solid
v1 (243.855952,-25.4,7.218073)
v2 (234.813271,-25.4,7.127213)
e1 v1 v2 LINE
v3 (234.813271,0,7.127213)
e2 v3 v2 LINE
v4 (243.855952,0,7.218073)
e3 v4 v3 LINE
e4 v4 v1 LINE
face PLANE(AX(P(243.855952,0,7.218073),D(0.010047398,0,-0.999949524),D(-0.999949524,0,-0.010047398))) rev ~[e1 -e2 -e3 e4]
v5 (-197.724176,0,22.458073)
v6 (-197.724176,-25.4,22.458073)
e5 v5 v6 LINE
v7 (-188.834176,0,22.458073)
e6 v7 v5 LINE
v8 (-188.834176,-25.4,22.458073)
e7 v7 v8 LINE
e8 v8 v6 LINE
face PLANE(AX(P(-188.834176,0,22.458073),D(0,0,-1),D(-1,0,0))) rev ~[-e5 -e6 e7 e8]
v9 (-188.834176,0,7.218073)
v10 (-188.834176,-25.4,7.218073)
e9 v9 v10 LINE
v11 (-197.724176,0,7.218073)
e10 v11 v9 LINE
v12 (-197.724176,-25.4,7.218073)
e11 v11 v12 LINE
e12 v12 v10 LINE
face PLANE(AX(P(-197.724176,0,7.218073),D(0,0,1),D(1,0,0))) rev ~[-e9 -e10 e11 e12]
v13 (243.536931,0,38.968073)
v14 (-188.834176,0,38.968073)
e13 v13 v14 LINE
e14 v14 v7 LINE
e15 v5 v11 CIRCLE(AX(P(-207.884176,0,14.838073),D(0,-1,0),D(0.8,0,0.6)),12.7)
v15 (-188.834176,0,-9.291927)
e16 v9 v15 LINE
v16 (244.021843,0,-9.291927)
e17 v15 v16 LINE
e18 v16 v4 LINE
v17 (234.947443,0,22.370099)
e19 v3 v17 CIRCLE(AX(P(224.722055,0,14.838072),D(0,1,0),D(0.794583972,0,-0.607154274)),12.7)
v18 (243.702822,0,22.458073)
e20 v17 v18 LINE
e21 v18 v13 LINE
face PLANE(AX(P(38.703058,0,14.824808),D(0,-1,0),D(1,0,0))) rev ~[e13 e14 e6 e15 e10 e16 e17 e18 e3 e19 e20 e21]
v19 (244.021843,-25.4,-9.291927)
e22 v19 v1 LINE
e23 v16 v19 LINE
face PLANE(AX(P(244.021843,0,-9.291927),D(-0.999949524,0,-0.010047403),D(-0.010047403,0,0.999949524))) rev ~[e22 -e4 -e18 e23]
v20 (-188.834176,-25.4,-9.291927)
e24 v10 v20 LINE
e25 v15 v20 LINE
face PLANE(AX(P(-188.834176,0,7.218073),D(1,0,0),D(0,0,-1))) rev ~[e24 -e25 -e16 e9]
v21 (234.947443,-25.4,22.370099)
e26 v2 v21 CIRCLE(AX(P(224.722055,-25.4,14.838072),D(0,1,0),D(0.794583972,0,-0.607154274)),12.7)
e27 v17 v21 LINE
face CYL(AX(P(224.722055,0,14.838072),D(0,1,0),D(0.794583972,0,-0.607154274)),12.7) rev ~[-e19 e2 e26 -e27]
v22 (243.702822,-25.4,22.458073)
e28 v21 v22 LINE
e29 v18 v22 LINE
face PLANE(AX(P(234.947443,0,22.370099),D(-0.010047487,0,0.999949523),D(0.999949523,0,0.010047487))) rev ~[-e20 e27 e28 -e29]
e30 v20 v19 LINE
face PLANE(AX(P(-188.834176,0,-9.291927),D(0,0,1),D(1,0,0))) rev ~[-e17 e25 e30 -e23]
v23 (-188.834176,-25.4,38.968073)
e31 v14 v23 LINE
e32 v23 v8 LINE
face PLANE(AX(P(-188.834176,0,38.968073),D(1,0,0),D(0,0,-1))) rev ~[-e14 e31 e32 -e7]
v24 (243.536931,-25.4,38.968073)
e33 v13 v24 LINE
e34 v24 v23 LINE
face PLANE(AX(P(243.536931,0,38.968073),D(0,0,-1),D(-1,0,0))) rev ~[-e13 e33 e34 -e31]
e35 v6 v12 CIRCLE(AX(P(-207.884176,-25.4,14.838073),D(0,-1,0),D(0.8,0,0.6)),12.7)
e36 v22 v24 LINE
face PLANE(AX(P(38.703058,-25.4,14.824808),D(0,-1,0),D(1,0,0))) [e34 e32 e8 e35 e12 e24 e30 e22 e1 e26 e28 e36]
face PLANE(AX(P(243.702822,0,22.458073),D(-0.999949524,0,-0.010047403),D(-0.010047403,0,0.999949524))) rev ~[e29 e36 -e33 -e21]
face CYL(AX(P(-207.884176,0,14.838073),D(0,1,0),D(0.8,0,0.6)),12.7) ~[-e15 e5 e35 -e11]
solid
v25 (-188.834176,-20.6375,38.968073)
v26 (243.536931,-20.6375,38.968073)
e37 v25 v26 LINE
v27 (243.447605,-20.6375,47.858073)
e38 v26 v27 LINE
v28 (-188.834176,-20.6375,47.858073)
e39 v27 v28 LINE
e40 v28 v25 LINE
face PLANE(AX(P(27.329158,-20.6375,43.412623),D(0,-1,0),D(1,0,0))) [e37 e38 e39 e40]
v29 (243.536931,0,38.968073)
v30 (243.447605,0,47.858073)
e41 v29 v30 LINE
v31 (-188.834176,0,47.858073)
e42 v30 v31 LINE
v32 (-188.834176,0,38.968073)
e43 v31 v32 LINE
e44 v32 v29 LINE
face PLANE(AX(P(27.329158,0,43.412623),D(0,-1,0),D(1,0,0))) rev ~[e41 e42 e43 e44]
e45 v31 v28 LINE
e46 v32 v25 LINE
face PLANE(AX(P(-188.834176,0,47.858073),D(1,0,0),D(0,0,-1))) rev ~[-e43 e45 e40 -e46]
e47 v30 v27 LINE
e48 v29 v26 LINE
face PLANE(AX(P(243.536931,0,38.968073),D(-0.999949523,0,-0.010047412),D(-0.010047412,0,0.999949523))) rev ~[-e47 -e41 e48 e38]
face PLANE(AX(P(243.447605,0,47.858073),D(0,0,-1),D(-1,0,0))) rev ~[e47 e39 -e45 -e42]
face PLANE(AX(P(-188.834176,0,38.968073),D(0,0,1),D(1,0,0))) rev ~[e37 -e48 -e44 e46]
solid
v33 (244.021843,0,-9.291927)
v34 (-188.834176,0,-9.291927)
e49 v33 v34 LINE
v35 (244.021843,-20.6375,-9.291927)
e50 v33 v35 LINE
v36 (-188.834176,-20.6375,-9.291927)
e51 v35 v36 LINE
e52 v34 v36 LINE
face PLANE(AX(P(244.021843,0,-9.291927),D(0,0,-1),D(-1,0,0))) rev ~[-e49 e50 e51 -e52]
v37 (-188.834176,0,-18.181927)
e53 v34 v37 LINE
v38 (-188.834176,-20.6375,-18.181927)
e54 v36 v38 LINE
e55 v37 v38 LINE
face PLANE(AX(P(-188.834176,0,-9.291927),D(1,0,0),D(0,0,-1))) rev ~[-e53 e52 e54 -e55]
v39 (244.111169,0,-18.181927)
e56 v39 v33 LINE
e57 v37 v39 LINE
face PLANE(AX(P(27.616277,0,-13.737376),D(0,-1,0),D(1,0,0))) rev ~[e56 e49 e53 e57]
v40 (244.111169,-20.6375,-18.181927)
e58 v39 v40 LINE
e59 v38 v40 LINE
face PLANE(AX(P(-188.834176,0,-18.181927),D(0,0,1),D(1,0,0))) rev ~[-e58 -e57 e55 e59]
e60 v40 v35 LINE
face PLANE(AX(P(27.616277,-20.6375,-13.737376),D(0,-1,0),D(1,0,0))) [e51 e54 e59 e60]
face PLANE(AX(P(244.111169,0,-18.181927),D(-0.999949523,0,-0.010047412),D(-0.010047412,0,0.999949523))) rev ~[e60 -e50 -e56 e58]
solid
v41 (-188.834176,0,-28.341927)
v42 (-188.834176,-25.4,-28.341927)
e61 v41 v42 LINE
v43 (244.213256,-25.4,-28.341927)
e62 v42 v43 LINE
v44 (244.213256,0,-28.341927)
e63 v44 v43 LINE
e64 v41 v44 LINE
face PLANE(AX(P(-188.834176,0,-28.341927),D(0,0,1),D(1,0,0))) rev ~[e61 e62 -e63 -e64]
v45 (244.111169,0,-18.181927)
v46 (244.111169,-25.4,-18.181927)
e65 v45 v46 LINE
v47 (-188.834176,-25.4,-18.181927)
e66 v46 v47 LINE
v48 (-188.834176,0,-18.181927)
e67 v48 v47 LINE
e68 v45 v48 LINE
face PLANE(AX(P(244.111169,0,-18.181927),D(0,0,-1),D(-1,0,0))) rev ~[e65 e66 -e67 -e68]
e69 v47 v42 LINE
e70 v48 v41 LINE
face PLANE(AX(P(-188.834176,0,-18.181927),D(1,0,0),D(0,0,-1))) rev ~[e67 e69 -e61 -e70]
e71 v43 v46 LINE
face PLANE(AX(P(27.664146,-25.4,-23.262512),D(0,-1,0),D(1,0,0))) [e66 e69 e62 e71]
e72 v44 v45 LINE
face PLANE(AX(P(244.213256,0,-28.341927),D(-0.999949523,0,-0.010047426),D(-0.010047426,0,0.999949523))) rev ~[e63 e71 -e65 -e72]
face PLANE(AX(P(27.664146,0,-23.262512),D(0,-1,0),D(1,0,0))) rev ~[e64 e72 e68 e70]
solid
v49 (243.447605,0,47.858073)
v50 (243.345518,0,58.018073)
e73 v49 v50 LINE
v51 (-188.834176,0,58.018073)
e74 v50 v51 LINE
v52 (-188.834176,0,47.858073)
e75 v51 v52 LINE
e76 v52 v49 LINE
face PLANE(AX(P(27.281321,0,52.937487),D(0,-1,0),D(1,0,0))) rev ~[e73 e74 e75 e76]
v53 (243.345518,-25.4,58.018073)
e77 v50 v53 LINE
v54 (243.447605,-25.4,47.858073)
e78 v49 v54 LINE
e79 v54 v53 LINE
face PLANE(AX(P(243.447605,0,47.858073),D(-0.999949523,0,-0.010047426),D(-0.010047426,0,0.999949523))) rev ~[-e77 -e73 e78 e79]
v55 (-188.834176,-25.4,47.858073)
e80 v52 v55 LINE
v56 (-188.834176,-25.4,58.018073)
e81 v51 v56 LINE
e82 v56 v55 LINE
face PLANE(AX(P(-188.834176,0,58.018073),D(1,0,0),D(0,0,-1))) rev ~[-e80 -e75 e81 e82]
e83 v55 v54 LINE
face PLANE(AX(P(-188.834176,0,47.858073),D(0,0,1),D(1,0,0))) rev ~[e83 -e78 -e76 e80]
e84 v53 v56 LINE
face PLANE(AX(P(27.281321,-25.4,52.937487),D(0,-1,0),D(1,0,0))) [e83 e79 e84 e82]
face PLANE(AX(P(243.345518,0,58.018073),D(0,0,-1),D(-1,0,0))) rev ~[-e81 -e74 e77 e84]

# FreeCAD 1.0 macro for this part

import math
import FreeCAD as App
import Part
import Sketcher
from FreeCAD import Vector
Q = App.Units.Quantity

doc = App.newDocument("Part")
params = doc.addObject("Spreadsheet::Sheet", "Params")
for row, (alias, value) in enumerate([
    ("sketch1_radius", "0.5 in"),
    ("sketch1_height", "0.4 in"),
    ("sketch1_width", "0.35 in"),
    ("sketch1_height2", "0.65 in"),
    ("pad1_length", "1 in"),
    ("sketch2_height", "0.35 in"),
    ("pad2_length", "0.8125 in"),
], start=1):
    params.set(f"A{row}", alias)
    params.set(f"B{row}", "=" + value)
    params.setAlias(f"B{row}", alias)

body = doc.addObject("PartDesign::Body", "Body")
body.AllowCompound = True

# Sketch on XZ plane
sketch1 = body.newObject("Sketcher::SketchObject", "Sketch")
sketch1.AttachmentSupport = (doc.getObject("XZ_Plane"), [""])
sketch1.MapMode = "FlatFace"
sketch1.addGeometry([
    Part.LineSegment(Vector(244, 39, 0), Vector(-189, 39, 0)),  # 0
    Part.LineSegment(Vector(-189, 39, 0), Vector(-189, 22, 0)),  # 1
    Part.LineSegment(Vector(-189, 22, 0), Vector(-198, 22, 0)),  # 2
    Part.ArcOfCircle(Part.Circle(Vector(-208, 15, 0), Vector(0, 0, 1), 13), math.radians(37), math.radians(323)),  # 3
    Part.LineSegment(Vector(-198, 7, 0), Vector(-189, 7, 0)),  # 4
    Part.LineSegment(Vector(-189, 7, 0), Vector(-189, -9, 0)),  # 5
    Part.LineSegment(Vector(-189, -9, 0), Vector(244, -9, 0)),  # 6
    Part.LineSegment(Vector(244, -9, 0), Vector(244, 7, 0)),  # 7
    Part.LineSegment(Vector(244, 7, 0), Vector(235, 7, 0)),  # 8
    Part.ArcOfCircle(Part.Circle(Vector(225, 15, 0), Vector(0, 0, 1), 13), math.radians(36), math.radians(323)),  # 9
    Part.LineSegment(Vector(235, 22, 0), Vector(244, 22, 0)),  # 10
    Part.LineSegment(Vector(244, 22, 0), Vector(244, 39, 0)),  # 11
    Part.LineSegment(Vector(244, -18, 0), Vector(-189, -18, 0)),  # 12
    Part.LineSegment(Vector(-189, -18, 0), Vector(-189, -28, 0)),  # 13
    Part.LineSegment(Vector(-189, -28, 0), Vector(244, -28, 0)),  # 14
    Part.LineSegment(Vector(244, -28, 0), Vector(244, -18, 0)),  # 15
    Part.LineSegment(Vector(243, 58, 0), Vector(-189, 58, 0)),  # 16
    Part.LineSegment(Vector(-189, 58, 0), Vector(-189, 48, 0)),  # 17
    Part.LineSegment(Vector(-189, 48, 0), Vector(243, 48, 0)),  # 18
    Part.LineSegment(Vector(243, 48, 0), Vector(243, 58, 0)),  # 19
], False)
sketch1.addConstraint([
    Sketcher.Constraint("Coincident", 0, 2, 1, 1),
    Sketcher.Constraint("Coincident", 1, 2, 2, 1),
    Sketcher.Constraint("Coincident", 2, 2, 3, 1),
    Sketcher.Constraint("Coincident", 3, 2, 4, 1),
    Sketcher.Constraint("Coincident", 4, 2, 5, 1),
    Sketcher.Constraint("Coincident", 5, 2, 6, 1),
    Sketcher.Constraint("Coincident", 6, 2, 7, 1),
    Sketcher.Constraint("Coincident", 7, 2, 8, 1),
    Sketcher.Constraint("Coincident", 8, 2, 9, 2),
    Sketcher.Constraint("Coincident", 9, 1, 10, 1),
    Sketcher.Constraint("Coincident", 10, 2, 11, 1),
    Sketcher.Constraint("Coincident", 11, 2, 0, 1),
    Sketcher.Constraint("Coincident", 12, 2, 13, 1),
    Sketcher.Constraint("Coincident", 13, 2, 14, 1),
    Sketcher.Constraint("Coincident", 14, 2, 15, 1),
    Sketcher.Constraint("Coincident", 15, 2, 12, 1),
    Sketcher.Constraint("Coincident", 16, 2, 17, 1),
    Sketcher.Constraint("Coincident", 17, 2, 18, 1),
    Sketcher.Constraint("Coincident", 18, 2, 19, 1),
    Sketcher.Constraint("Coincident", 19, 2, 16, 1),
    Sketcher.Constraint("Horizontal", 0),
    Sketcher.Constraint("Vertical", 1),
    Sketcher.Constraint("Horizontal", 2),
    Sketcher.Constraint("Horizontal", 4),
    Sketcher.Constraint("Vertical", 5),
    Sketcher.Constraint("Horizontal", 6),
    Sketcher.Constraint("Horizontal", 12),
    Sketcher.Constraint("Vertical", 13),
    Sketcher.Constraint("Horizontal", 14),
    Sketcher.Constraint("Horizontal", 16),
    Sketcher.Constraint("Vertical", 17),
    Sketcher.Constraint("Horizontal", 18),
    Sketcher.Constraint("Equal", 3, 9),
    Sketcher.Constraint("Perpendicular", 7, 8),
    Sketcher.Constraint("Parallel", 8, 10),
    Sketcher.Constraint("Perpendicular", 10, 11),
    Sketcher.Constraint("Parallel", 11, 15),
    Sketcher.Constraint("Parallel", 15, 19),
    Sketcher.Constraint("Horizontal", 3, 3, 9, 3),
    Sketcher.Constraint("Horizontal", 4, 2, 7, 2),
    Sketcher.Constraint("Horizontal", 2, 2, 10, 2),
    Sketcher.Constraint("Vertical", 2, 2, 3, 2),
    Sketcher.Constraint("Vertical", 1, 2, 4, 2),
    Sketcher.Constraint("Vertical", 5, 2, 12, 2),
    Sketcher.Constraint("Vertical", 13, 2, 16, 2),
    Sketcher.Constraint("Equal", 1, 5),
    Sketcher.Constraint("Equal", 13, 17),
    Sketcher.Constraint("Radius", 3, Q("0.5 in")),
    Sketcher.Constraint("DistanceY", 13, 2, 13, 1, Q("0.4 in")),
    Sketcher.Constraint("DistanceY", 12, 2, 4, 2, Q("1 in")),
    Sketcher.Constraint("DistanceY", 14, 2, 10, 2, Q("2 in")),
    Sketcher.Constraint("DistanceY", 4, 2, 16, 2, Q("2 in")),
    Sketcher.Constraint("DistanceX", 2, 2, 2, 1, Q("0.35 in")),
    Sketcher.Constraint("DistanceY", 1, 2, 1, 1, Q("0.65 in")),
    Sketcher.Constraint("DistanceX", 9, 1, 10, 2, Q("0.3447 in")),
    Sketcher.Constraint("DistanceX", 6, 1, 6, 2, 432.856019),
    Sketcher.Constraint("DistanceX", 14, 1, 14, 2, 433.047432),
    Sketcher.Constraint("DistanceX", 18, 1, 18, 2, 432.281781),
    Sketcher.Constraint("DistanceY", -1, 1, 9, 1, 22.370099),
    Sketcher.Constraint("DistanceX", 9, 1, 6, 2, 9.0744),
    Sketcher.Constraint("DistanceX", 9, 3, 14, 2, 19.491201),
    Sketcher.Constraint("DistanceX", -1, 1, 7, 2, 243.855952),
])
sketch1.setExpression("Constraints[47]", "Params.sketch1_radius")
sketch1.setExpression("Constraints[48]", "Params.sketch1_height")
sketch1.setExpression("Constraints[52]", "Params.sketch1_width")
sketch1.setExpression("Constraints[53]", "Params.sketch1_height2")
pad1 = body.newObject("PartDesign::Pad", "Pad")
pad1.Profile = sketch1
pad1.setExpression("Length", "Params.pad1_length")
body2 = doc.addObject("PartDesign::Body", "Body001")
body2.AllowCompound = True

# Sketch on XZ plane
sketch2 = body2.newObject("Sketcher::SketchObject", "Sketch001")
sketch2.AttachmentSupport = (doc.getObject("XZ_Plane001"), [""])
sketch2.MapMode = "FlatFace"
sketch2.addGeometry([
    Part.LineSegment(Vector(243.447605, 47.858073, 0), Vector(-188.834176, 47.858073, 0)),  # 0
    Part.LineSegment(Vector(-188.834176, 47.858073, 0), Vector(-188.834176, 38.968073, 0)),  # 1
    Part.LineSegment(Vector(-188.834176, 38.968073, 0), Vector(243.536931, 38.968073, 0)),  # 2
    Part.LineSegment(Vector(243.536931, 38.968073, 0), Vector(243.447605, 47.858073, 0)),  # 3
    Part.LineSegment(Vector(244.021843, -9.291927, 0), Vector(-188.834176, -9.291927, 0)),  # 4
    Part.LineSegment(Vector(-188.834176, -9.291927, 0), Vector(-188.834176, -18.181927, 0)),  # 5
    Part.LineSegment(Vector(-188.834176, -18.181927, 0), Vector(244.111169, -18.181927, 0)),  # 6
    Part.LineSegment(Vector(244.111169, -18.181927, 0), Vector(244.021843, -9.291927, 0)),  # 7
], False)
sketch2.addConstraint([
    Sketcher.Constraint("Coincident", 0, 2, 1, 1),
    Sketcher.Constraint("Coincident", 1, 2, 2, 1),
    Sketcher.Constraint("Coincident", 2, 2, 3, 1),
    Sketcher.Constraint("Coincident", 3, 2, 0, 1),
    Sketcher.Constraint("Coincident", 4, 2, 5, 1),
    Sketcher.Constraint("Coincident", 5, 2, 6, 1),
    Sketcher.Constraint("Coincident", 6, 2, 7, 1),
    Sketcher.Constraint("Coincident", 7, 2, 4, 1),
    Sketcher.Constraint("Horizontal", 0),
    Sketcher.Constraint("Vertical", 1),
    Sketcher.Constraint("Horizontal", 2),
    Sketcher.Constraint("Horizontal", 4),
    Sketcher.Constraint("Vertical", 5),
    Sketcher.Constraint("Horizontal", 6),
    Sketcher.Constraint("Parallel", 3, 7),
    Sketcher.Constraint("Vertical", 1, 2, 4, 2),
    Sketcher.Constraint("Equal", 1, 5),
    Sketcher.Constraint("DistanceY", 1, 2, 1, 1, Q("0.35 in")),
    Sketcher.Constraint("DistanceY", 4, 2, 1, 2, Q("1.9 in")),
    Sketcher.Constraint("DistanceX", 0, 2, 0, 1, 432.281781),
    Sketcher.Constraint("DistanceX", 4, 2, 4, 1, 432.856019),
    Sketcher.Constraint("Distance", 3, 8.890449),
    Sketcher.Constraint("DistanceX", -1, 1, 2, 2, 243.536931),
    Sketcher.Constraint("DistanceY", -1, 1, 0, 2, 47.858073),
])
sketch2.setExpression("Constraints[17]", "Params.sketch2_height")
pad2 = body2.newObject("PartDesign::Pad", "Pad001")
pad2.Profile = sketch2
pad2.setExpression("Length", "Params.pad2_length")

doc.recompute()
